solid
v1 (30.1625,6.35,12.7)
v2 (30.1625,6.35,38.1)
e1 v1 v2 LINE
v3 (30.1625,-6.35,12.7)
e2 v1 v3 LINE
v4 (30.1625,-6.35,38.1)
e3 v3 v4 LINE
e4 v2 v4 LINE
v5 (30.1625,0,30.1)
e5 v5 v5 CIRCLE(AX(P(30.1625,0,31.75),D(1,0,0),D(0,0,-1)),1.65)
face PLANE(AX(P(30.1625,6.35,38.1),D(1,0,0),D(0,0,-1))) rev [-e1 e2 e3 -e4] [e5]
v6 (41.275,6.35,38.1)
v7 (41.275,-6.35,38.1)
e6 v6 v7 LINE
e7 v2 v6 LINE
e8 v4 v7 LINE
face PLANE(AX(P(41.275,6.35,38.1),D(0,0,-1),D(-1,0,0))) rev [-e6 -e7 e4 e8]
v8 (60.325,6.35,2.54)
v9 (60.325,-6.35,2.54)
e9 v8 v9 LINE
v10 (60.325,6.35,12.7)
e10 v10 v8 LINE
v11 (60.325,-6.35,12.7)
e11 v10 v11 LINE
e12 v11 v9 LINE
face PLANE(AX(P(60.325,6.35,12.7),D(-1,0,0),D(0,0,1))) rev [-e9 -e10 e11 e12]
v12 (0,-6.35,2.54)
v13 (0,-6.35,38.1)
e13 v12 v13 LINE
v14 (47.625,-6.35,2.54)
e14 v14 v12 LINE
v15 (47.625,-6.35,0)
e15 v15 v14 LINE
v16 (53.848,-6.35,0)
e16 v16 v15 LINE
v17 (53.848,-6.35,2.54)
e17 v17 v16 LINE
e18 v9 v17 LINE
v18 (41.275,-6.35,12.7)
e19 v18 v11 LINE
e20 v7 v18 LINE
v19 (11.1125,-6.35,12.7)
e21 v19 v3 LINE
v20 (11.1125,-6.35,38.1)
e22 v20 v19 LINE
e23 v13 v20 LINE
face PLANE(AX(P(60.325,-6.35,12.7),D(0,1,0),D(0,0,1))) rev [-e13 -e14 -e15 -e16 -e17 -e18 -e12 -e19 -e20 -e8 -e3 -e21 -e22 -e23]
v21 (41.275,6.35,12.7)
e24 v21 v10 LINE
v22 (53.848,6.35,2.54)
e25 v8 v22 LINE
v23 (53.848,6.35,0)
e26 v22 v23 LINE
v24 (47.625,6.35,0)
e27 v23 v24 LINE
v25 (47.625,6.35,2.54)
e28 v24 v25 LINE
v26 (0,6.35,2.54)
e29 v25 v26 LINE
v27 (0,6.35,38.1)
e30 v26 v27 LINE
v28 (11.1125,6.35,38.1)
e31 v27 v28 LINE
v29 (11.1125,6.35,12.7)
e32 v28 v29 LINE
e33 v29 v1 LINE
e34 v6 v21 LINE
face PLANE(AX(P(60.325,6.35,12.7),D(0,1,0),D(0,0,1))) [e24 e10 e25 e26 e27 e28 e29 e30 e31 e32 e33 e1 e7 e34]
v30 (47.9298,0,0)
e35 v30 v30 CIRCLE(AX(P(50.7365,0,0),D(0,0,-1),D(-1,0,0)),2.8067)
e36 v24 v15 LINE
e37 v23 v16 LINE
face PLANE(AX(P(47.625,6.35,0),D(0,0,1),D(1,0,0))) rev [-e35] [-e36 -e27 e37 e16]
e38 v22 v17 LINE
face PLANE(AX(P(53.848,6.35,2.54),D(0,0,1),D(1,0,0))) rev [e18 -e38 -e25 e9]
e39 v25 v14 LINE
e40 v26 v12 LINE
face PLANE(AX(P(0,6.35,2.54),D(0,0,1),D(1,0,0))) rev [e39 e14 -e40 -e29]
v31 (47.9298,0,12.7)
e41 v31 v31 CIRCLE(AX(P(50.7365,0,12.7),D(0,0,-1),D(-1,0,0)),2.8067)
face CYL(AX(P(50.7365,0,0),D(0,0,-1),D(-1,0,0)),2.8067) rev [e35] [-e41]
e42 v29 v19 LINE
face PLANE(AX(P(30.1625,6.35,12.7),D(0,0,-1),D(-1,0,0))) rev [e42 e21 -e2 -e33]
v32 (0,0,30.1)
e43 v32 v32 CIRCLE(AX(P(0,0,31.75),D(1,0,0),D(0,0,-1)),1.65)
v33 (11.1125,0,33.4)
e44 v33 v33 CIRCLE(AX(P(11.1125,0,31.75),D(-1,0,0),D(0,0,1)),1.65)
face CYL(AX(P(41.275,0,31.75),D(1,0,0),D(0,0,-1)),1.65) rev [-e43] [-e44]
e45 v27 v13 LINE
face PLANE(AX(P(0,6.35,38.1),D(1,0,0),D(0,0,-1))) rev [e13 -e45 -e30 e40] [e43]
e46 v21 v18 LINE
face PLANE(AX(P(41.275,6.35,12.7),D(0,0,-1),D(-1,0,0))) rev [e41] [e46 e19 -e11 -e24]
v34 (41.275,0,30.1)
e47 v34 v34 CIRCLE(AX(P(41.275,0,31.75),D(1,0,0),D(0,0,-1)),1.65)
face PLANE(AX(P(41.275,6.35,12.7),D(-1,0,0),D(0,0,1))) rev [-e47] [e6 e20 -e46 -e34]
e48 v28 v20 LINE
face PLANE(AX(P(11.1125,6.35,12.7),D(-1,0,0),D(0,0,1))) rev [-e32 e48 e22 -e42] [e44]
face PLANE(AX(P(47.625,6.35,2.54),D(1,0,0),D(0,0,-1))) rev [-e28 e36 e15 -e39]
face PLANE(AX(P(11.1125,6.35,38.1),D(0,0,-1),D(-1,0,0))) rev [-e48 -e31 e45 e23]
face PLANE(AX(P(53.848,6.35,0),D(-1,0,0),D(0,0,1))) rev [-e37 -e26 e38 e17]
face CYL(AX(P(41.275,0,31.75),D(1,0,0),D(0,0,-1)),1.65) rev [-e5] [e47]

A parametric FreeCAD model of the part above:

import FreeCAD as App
import Part
import Sketcher
from FreeCAD import Vector
Q = App.Units.Quantity


def add_polygon(sketch, points):
    """Adds a closed chain of lines whose ends are joined by coincident constraints."""
    first, n = sketch.GeometryCount, len(points)
    for a, b in zip(points, points[1:] + points[:1]):
        sketch.addGeometry(Part.LineSegment(App.Vector(*a, 0), App.Vector(*b, 0)), False)
    for i in range(n):
        sketch.addConstraint(Sketcher.Constraint("Coincident", first + i, 2, first + (i + 1) % n, 1))

doc = App.newDocument("Part")
body = doc.addObject("PartDesign::Body", "Body")

# Sketch on XZ plane
sketch1 = body.newObject("Sketcher::SketchObject", "Sketch")
sketch1.AttachmentSupport = (doc.getObject("XZ_Plane"), [""])
sketch1.MapMode = "FlatFace"
add_polygon(sketch1, [(53.8, 0), (47.6, 0), (47.6, 2.5), (0, 2.5), (0, 38.1), (11.1, 38.1), (11.1, 12.7), (30.2, 12.7), (30.2, 38.1), (41.3, 38.1), (41.3, 12.7), (60.3, 12.7), (60.3, 2.5), (53.8, 2.5)])  # lines 0-13
sketch1.addConstraint([
    Sketcher.Constraint("Horizontal", 0),
    Sketcher.Constraint("Vertical", 1),
    Sketcher.Constraint("Horizontal", 2),
    Sketcher.Constraint("Vertical", 3),
    Sketcher.Constraint("Horizontal", 4),
    Sketcher.Constraint("Vertical", 5),
    Sketcher.Constraint("Horizontal", 6),
    Sketcher.Constraint("Vertical", 7),
    Sketcher.Constraint("Horizontal", 8),
    Sketcher.Constraint("Vertical", 9),
    Sketcher.Constraint("Horizontal", 10),
    Sketcher.Constraint("Vertical", 11),
    Sketcher.Constraint("Horizontal", 12),
    Sketcher.Constraint("Vertical", 13),
    Sketcher.Constraint("PointOnObject", 0, 2, -1),
    Sketcher.Constraint("PointOnObject", 2, 2, -2),
    Sketcher.Constraint("Horizontal", 4, 2, 7, 2),
    Sketcher.Constraint("Horizontal", 6, 2, 9, 2),
    Sketcher.Constraint("Horizontal", 2, 2, 11, 2),
    Sketcher.Constraint("Equal", 4, 8),
    Sketcher.Constraint("Equal", 6, 10),
    Sketcher.Constraint("DistanceY", 5, 2, 5, 1, Q("1 in")),
    Sketcher.Constraint("DistanceY", 1, 1, 1, 2, Q("0.1 in")),
    Sketcher.Constraint("DistanceY", 3, 1, 3, 2, Q("1.4 in")),
    Sketcher.Constraint("DistanceX", 6, 1, 6, 2, Q("0.75 in")),
    Sketcher.Constraint("DistanceX", 1, 2, 10, 2, Q("0.5 in")),
    Sketcher.Constraint("DistanceX", 0, 2, 0, 1, Q("0.245 in")),
    Sketcher.Constraint("DistanceX", 2, 2, 2, 1, Q("1.875 in")),
])
pad1 = body.newObject("PartDesign::Pad", "Pad")
pad1.Profile = sketch1
pad1.Length = Q("0.5 in")
pad1.Midplane = True

# Sketch on YZ plane
sketch2 = body.newObject("Sketcher::SketchObject", "Sketch001")
sketch2.AttachmentSupport = (doc.getObject("YZ_Plane"), [""])
sketch2.MapMode = "FlatFace"
sketch2.AttachmentOffset = App.Placement(Vector(0, 0, 1.625 * 25.4), App.Rotation())
sketch2.addGeometry(Part.Circle(Vector(0, 31.8, 0), Vector(0, 0, 1), 1.6), False)
sketch2.addConstraint([
    Sketcher.Constraint("PointOnObject", 0, 3, -2),
    Sketcher.Constraint("Diameter", 0, 3.3),
    Sketcher.Constraint("DistanceY", -1, 1, 0, 3, Q("1.25 in")),
])
doc.recompute()
hole = body.newObject("PartDesign::Hole", "Hole")
hole.Profile = sketch2
hole.ThreadType = "None"
hole.Diameter = 3.3
hole.DepthType = "ThroughAll"

# Sketch on XY plane
sketch3 = body.newObject("Sketcher::SketchObject", "Sketch002")
sketch3.AttachmentSupport = (doc.getObject("XY_Plane"), [""])
sketch3.MapMode = "FlatFace"
sketch3.addGeometry(Part.Circle(Vector(50.7, 0, 0), Vector(0, 0, 1), 2.8), False)
sketch3.addConstraint([
    Sketcher.Constraint("PointOnObject", 0, 3, -1),
    Sketcher.Constraint("Diameter", 0, Q("0.221 in")),
    Sketcher.Constraint("DistanceX", -1, 1, 0, 3, Q("1.9975 in")),
])
doc.recompute()
hole2 = body.newObject("PartDesign::Hole", "Hole001")
hole2.Profile = sketch3
hole2.ThreadType = "None"
hole2.Diameter = Q("0.221 in")
hole2.DepthType = "ThroughAll"
hole2.Reversed = True

doc.recompute()
